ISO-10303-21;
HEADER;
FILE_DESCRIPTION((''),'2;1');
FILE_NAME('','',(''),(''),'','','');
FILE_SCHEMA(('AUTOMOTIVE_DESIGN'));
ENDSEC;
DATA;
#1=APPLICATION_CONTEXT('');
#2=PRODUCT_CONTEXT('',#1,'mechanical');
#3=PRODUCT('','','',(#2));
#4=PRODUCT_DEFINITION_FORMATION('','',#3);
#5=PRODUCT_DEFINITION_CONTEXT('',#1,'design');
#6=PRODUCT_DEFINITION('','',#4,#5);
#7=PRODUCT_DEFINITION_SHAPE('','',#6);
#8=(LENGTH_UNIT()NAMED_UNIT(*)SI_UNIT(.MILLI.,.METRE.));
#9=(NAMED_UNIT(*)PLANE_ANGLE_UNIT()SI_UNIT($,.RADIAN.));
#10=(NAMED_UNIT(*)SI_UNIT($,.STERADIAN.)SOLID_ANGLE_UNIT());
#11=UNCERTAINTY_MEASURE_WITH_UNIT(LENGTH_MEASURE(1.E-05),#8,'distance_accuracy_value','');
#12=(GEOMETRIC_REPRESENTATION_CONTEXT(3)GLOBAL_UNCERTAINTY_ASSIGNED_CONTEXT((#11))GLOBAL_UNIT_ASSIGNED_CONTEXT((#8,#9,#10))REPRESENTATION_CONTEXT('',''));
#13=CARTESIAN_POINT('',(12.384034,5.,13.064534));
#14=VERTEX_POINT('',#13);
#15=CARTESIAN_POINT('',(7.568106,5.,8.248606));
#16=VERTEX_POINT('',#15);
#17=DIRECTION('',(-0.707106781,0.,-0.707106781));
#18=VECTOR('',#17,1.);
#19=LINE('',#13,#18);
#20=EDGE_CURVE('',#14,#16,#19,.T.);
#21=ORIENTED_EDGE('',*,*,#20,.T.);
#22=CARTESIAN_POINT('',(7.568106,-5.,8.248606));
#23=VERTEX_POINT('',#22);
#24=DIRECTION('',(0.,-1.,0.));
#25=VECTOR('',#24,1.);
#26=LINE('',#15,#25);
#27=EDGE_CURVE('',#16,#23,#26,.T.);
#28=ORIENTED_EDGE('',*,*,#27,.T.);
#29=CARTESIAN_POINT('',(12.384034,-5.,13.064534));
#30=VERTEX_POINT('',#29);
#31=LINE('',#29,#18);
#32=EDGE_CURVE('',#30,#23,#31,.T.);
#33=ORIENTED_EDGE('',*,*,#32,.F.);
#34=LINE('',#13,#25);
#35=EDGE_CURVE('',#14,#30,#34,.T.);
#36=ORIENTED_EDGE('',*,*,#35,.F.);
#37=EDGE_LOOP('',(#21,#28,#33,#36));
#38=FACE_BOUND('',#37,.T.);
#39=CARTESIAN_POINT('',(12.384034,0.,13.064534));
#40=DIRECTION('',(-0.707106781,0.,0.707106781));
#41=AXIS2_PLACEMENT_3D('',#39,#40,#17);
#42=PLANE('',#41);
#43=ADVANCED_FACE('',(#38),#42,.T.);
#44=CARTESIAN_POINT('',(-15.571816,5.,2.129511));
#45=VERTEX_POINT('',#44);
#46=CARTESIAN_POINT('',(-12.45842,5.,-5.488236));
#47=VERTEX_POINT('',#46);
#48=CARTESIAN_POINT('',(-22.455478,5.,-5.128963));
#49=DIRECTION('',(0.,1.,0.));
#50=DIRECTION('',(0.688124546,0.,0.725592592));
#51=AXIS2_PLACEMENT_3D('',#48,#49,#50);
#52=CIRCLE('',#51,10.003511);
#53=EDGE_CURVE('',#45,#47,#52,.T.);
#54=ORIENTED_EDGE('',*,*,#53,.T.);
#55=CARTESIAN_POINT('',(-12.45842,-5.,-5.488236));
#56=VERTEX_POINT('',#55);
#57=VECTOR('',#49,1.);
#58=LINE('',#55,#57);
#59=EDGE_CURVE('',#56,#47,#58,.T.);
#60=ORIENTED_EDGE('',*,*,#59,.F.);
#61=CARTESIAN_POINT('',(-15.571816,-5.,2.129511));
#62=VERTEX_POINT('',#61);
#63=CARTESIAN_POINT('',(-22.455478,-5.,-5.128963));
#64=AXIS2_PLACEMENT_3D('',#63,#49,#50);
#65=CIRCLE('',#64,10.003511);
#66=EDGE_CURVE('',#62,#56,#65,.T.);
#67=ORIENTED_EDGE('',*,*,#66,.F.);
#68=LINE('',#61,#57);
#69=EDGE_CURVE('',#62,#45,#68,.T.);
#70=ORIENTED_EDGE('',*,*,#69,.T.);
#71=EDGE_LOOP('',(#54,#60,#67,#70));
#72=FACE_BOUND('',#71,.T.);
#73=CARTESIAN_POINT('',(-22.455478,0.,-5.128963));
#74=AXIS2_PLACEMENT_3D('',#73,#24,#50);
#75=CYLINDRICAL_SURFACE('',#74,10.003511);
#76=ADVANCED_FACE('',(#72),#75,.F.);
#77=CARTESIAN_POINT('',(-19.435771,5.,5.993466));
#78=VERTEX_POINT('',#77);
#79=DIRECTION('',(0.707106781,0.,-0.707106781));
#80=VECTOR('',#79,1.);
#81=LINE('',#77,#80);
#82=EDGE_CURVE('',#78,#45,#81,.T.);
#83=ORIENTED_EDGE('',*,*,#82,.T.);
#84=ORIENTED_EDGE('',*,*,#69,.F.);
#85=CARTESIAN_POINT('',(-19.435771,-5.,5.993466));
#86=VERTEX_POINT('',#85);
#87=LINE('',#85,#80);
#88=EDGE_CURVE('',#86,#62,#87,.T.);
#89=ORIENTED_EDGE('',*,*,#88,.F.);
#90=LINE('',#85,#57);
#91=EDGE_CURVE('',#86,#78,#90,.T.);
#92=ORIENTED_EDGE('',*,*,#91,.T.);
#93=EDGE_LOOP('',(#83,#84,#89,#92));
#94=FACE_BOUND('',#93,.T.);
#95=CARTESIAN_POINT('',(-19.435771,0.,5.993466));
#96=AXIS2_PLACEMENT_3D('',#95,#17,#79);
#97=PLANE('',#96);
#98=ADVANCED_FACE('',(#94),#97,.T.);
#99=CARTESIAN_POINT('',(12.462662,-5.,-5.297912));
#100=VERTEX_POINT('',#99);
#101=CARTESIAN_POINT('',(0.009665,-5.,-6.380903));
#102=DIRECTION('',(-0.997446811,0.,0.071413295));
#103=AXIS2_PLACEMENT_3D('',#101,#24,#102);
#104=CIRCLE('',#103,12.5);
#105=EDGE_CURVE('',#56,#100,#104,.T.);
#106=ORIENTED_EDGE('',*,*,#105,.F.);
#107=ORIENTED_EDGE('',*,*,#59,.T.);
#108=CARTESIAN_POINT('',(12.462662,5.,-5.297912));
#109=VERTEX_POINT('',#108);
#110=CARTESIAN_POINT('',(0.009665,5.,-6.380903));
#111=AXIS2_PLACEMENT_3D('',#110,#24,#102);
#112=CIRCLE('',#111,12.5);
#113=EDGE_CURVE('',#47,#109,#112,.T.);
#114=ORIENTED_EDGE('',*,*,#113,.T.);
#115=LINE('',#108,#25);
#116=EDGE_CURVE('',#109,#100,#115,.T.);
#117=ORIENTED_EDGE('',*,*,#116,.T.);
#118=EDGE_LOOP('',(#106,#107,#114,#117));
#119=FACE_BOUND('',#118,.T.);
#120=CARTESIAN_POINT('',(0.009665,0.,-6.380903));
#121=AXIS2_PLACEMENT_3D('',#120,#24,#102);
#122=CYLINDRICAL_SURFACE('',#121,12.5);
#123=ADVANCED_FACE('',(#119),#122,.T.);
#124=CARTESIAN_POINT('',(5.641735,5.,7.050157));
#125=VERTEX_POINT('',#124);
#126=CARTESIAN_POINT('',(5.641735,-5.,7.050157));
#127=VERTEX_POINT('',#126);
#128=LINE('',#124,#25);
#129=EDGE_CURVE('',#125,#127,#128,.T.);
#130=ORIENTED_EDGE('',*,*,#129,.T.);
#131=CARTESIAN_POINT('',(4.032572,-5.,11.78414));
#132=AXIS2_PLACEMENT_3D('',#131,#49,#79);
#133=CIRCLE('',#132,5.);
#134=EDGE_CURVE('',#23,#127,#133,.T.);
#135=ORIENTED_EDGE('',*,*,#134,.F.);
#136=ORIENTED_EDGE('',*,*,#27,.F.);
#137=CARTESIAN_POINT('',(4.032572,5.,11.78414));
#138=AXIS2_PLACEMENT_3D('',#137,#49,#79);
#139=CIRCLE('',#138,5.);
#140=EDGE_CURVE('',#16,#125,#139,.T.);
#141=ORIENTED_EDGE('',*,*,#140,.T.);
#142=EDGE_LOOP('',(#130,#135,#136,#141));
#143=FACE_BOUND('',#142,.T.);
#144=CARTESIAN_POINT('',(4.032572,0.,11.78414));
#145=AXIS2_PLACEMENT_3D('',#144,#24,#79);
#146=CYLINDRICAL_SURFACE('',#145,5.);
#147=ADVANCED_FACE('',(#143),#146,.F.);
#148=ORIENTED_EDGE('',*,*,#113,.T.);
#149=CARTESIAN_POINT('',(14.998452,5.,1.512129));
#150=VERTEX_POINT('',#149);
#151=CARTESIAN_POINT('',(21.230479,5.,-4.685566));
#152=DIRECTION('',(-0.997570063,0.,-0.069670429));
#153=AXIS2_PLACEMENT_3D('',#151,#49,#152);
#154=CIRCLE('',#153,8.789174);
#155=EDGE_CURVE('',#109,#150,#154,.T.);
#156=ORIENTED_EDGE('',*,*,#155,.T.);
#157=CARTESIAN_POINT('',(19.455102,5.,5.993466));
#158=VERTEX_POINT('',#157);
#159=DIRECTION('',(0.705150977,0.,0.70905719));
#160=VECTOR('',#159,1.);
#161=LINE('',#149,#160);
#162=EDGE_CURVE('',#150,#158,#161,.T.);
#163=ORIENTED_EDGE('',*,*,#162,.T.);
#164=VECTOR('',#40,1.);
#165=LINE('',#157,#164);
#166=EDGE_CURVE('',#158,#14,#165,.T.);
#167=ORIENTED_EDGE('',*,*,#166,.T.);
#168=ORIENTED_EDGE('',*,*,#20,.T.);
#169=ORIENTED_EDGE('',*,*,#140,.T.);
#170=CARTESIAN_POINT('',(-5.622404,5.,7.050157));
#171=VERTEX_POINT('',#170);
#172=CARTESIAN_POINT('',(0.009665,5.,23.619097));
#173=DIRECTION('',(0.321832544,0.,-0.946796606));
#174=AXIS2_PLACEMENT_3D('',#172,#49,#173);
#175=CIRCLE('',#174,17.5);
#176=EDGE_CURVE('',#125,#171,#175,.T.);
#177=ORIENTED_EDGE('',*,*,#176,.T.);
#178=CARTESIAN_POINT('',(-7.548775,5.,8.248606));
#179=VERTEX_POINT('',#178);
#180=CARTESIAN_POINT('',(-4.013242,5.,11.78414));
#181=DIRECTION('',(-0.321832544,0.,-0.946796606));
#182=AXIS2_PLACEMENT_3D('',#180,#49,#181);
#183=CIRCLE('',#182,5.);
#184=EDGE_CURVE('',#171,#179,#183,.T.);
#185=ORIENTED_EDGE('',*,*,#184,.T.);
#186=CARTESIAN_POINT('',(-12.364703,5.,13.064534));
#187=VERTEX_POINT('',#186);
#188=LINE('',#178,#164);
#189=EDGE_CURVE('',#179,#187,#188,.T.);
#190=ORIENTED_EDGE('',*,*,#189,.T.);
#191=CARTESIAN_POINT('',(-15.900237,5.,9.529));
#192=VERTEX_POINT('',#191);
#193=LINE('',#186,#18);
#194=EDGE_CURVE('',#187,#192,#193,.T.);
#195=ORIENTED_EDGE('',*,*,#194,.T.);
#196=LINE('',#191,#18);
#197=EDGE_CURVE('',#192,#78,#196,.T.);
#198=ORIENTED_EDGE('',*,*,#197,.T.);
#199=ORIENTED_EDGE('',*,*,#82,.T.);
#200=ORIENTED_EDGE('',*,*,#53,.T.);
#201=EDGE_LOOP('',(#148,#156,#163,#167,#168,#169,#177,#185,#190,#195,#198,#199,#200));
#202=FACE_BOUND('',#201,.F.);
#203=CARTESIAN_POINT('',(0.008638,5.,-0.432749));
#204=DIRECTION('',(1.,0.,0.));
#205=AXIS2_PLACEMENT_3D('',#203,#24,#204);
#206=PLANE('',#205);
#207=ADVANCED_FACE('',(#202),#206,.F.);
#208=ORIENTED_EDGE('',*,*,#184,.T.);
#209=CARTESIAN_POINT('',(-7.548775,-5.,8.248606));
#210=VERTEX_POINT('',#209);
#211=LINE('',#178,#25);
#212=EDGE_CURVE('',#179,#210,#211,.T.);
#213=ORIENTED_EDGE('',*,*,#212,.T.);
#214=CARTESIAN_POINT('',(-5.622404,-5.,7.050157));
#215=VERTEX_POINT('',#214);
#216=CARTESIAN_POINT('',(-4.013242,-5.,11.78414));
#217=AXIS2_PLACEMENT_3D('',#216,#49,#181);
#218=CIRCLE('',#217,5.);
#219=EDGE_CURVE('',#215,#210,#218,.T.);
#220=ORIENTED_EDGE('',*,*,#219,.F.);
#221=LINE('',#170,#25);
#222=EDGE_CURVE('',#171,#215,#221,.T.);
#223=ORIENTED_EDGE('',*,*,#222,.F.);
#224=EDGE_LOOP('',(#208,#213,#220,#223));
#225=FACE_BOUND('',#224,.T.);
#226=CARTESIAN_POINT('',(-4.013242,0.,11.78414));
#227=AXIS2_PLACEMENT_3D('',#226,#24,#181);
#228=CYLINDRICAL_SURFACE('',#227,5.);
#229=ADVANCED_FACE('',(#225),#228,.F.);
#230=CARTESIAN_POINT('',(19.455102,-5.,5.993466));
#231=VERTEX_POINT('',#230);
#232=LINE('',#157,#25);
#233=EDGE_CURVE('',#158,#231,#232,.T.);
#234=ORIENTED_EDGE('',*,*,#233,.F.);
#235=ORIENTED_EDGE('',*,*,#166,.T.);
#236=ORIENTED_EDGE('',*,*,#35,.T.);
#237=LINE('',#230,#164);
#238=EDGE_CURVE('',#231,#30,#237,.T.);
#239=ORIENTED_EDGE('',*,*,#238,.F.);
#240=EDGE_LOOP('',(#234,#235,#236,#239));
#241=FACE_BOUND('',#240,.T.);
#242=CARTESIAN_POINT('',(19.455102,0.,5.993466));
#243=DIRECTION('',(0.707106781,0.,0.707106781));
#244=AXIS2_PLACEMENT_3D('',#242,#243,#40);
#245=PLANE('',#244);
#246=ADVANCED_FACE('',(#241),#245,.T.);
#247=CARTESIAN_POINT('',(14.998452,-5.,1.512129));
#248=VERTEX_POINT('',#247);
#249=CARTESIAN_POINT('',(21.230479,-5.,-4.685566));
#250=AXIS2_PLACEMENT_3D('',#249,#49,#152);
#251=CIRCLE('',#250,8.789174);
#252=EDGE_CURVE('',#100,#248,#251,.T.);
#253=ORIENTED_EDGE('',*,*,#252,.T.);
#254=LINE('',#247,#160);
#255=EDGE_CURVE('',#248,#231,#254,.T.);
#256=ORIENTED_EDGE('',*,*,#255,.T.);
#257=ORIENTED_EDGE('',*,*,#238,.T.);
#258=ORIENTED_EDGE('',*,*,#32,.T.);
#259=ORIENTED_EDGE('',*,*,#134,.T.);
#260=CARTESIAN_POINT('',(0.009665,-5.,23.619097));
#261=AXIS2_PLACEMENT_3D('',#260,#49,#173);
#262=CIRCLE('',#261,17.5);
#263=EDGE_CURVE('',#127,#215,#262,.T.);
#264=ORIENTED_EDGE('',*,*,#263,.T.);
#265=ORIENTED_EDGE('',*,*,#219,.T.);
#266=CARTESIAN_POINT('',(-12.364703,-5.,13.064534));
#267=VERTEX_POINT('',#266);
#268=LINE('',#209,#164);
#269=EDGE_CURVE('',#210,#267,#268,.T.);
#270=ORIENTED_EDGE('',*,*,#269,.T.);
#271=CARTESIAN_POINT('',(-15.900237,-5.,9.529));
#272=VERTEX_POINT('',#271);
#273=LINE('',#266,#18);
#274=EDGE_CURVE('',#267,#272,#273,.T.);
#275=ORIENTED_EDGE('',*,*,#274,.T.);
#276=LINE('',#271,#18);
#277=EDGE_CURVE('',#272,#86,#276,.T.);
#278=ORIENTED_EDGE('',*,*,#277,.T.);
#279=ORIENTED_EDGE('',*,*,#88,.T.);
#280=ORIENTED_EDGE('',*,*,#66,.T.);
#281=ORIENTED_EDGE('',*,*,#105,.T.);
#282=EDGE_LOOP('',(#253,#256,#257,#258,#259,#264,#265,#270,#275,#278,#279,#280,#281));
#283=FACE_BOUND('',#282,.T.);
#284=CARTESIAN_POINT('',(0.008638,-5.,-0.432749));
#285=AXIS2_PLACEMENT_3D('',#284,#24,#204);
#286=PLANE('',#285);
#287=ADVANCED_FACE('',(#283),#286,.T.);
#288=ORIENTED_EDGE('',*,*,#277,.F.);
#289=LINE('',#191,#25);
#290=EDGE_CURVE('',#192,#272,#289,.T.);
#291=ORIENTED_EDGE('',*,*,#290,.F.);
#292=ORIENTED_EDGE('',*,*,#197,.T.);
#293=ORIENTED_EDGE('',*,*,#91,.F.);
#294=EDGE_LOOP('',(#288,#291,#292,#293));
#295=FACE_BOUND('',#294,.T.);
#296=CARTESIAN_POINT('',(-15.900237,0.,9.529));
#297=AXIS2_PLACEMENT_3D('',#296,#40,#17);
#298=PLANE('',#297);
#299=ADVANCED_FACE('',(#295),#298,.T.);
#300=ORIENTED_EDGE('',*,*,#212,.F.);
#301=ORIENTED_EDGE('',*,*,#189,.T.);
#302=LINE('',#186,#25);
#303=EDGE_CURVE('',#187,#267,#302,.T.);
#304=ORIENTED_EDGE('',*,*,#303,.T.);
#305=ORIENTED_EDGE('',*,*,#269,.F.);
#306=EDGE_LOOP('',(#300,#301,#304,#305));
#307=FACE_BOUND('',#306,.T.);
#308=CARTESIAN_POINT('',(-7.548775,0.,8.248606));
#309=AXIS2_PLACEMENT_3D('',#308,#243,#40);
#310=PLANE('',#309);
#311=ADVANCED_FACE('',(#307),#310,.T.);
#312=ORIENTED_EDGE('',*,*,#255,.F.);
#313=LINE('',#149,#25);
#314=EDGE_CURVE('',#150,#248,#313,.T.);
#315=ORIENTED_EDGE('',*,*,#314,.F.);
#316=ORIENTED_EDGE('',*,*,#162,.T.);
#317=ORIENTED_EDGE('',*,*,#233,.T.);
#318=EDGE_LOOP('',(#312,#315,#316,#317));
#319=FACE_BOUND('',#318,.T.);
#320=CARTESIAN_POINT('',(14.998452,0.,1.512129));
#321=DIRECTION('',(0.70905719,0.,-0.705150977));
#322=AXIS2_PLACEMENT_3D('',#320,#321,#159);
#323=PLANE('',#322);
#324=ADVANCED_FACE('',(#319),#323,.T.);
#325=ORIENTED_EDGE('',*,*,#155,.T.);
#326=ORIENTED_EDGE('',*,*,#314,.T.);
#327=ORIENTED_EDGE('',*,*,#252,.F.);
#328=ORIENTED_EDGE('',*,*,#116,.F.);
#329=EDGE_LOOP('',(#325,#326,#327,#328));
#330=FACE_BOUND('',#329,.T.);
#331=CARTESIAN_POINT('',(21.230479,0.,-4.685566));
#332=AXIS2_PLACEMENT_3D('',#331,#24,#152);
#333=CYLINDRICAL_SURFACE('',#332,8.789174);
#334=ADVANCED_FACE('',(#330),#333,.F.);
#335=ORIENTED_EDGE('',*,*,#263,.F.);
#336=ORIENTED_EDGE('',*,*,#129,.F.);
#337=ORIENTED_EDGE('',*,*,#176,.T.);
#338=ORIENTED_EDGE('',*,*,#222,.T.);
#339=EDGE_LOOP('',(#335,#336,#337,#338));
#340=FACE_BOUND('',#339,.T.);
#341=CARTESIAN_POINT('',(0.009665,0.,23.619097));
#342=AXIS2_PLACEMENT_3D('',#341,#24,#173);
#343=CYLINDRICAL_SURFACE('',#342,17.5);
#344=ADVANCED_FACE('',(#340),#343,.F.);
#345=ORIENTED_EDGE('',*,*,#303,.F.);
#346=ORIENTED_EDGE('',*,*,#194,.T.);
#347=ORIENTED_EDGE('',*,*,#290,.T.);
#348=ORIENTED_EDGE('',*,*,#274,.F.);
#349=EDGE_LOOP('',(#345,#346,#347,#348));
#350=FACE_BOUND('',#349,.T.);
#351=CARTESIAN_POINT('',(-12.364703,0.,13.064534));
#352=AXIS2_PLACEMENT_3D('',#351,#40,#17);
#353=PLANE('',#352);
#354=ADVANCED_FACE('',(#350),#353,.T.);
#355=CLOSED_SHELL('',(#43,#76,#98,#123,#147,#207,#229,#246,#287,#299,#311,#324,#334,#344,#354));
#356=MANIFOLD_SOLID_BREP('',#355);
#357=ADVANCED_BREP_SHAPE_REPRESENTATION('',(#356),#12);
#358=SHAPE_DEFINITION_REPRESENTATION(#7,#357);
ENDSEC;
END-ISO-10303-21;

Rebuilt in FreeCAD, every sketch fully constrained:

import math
import FreeCAD as App
import Part
import Sketcher
from FreeCAD import Vector

doc = App.newDocument("Part")
body = doc.addObject("PartDesign::Body", "Body")

# Sketch on XZ plane
sketch1 = body.newObject("Sketcher::SketchObject", "Sketch")
sketch1.AttachmentSupport = (doc.getObject("XZ_Plane"), [""])
sketch1.MapMode = "FlatFace"
sketch1.addGeometry([
    Part.ArcOfCircle(Part.Circle(Vector(0.009665, -6.380903, 0), Vector(0, 0, 1), 12.5), math.radians(175.904834), math.radians(364.970296)),  # 0
    Part.ArcOfCircle(Part.Circle(Vector(21.230479, -4.685566, 0), Vector(0, 0, 1), 8.789174), math.radians(135.158257), math.radians(183.995058)),  # 1
    Part.LineSegment(Vector(14.998452, 1.512129, 0), Vector(19.455102, 5.993466, 0)),  # 2
    Part.LineSegment(Vector(19.455102, 5.993466, 0), Vector(12.384034, 13.064534, 0)),  # 3
    Part.LineSegment(Vector(12.384034, 13.064534, 0), Vector(7.568106, 8.248606, 0)),  # 4
    Part.ArcOfCircle(Part.Circle(Vector(4.032572, 11.78414, 0), Vector(0, 0, 1), 5), math.radians(-71.226214), math.radians(-45)),  # 5
    Part.ArcOfCircle(Part.Circle(Vector(0.009665, 23.619097, 0), Vector(0, 0, 1), 17.5), math.radians(-108.773786), math.radians(-71.226214)),  # 6
    Part.ArcOfCircle(Part.Circle(Vector(-4.013242, 11.78414, 0), Vector(0, 0, 1), 5), math.radians(-135), math.radians(-108.773786)),  # 7
    Part.LineSegment(Vector(-7.548775, 8.248606, 0), Vector(-12.364703, 13.064534, 0)),  # 8
    Part.LineSegment(Vector(-12.364703, 13.064534, 0), Vector(-15.900237, 9.529, 0)),  # 9
    Part.LineSegment(Vector(-15.900237, 9.529, 0), Vector(-19.435771, 5.993466, 0)),  # 10
    Part.LineSegment(Vector(-19.435771, 5.993466, 0), Vector(-15.571816, 2.129511, 0)),  # 11
    Part.ArcOfCircle(Part.Circle(Vector(-22.455478, -5.128963, 0), Vector(0, 0, 1), 10.003511), math.radians(-2.058205), math.radians(46.518167)),  # 12
], False)
sketch1.addConstraint([
    Sketcher.Constraint("Coincident", 0, 2, 1, 2),
    Sketcher.Constraint("Coincident", 1, 1, 2, 1),
    Sketcher.Constraint("Coincident", 2, 2, 3, 1),
    Sketcher.Constraint("Coincident", 3, 2, 4, 1),
    Sketcher.Constraint("Coincident", 4, 2, 5, 2),
    Sketcher.Constraint("Coincident", 5, 1, 6, 2),
    Sketcher.Constraint("Coincident", 6, 1, 7, 2),
    Sketcher.Constraint("Coincident", 7, 1, 8, 1),
    Sketcher.Constraint("Coincident", 8, 2, 9, 1),
    Sketcher.Constraint("Coincident", 9, 2, 10, 1),
    Sketcher.Constraint("Coincident", 10, 2, 11, 1),
    Sketcher.Constraint("Coincident", 11, 2, 12, 2),
    Sketcher.Constraint("Coincident", 12, 1, 0, 1),
    Sketcher.Constraint("Radius", 5, 5.0),
    Sketcher.Constraint("Radius", 7, 5.0),
    Sketcher.Constraint("Radius", 0, 12.5),
    Sketcher.Constraint("Radius", 6, 17.5),
    Sketcher.Constraint("Distance", 3, 10.0),
    Sketcher.Constraint("Distance", 9, 5.0),
    Sketcher.Constraint("Distance", 10, 5.0),
    Sketcher.Constraint("DistanceY", 0, 3, 6, 3, 30.0),
    Sketcher.Constraint("Radius", 12, 10.003511),
    Sketcher.Constraint("DistanceY", -1, 1, 9, 2, 9.529),
    Sketcher.Constraint("Radius", 1, 8.789174),
    Sketcher.Constraint("DistanceX", -1, 1, 2, 2, 19.455102),
    Sketcher.Constraint("DistanceX", 5, 1, 3, 2, 6.742299),
    Sketcher.Constraint("DistanceX", 8, 2, 6, 1, 6.742299),
    Sketcher.Constraint("Distance", 4, 6.810751),
    Sketcher.Constraint("Distance", 8, 6.810751),
    Sketcher.Constraint("Distance", 11, 5.464458),
    Sketcher.Constraint("DistanceX", -1, 1, 1, 3, 21.230479),
    Sketcher.Constraint("DistanceY", -1, 1, 5, 3, 11.78414),
    Sketcher.Constraint("DistanceX", 7, 3, -1, 1, 4.013242),
    Sketcher.Constraint("DistanceY", -1, 1, 7, 3, 11.78414),
    Sketcher.Constraint("DistanceY", 0, 2, -1, 1, 5.297912),
    Sketcher.Constraint("DistanceY", -1, 1, 1, 1, 1.512129),
    Sketcher.Constraint("DistanceX", 10, 2, -1, 1, 19.435771),
    Sketcher.Constraint("DistanceY", -1, 1, 11, 2, 2.129511),
    Sketcher.Constraint("DistanceX", 12, 1, -1, 1, 12.45842),
    Sketcher.Constraint("DistanceY", 0, 3, 12, 3, 1.25194),
    Sketcher.Constraint("DistanceX", 12, 3, 5, 3, 26.48805),
    Sketcher.Constraint("DistanceX", 5, 3, 0, 2, 8.43009),
    Sketcher.Constraint("DistanceY", 0, 3, 2, 2, 12.374369),
    Sketcher.Constraint("DistanceX", 5, 3, 3, 2, 8.351462),
    Sketcher.Constraint("DistanceX", 6, 1, 5, 1, 11.264139),
])
pad1 = body.newObject("PartDesign::Pad", "Pad")
pad1.Profile = sketch1
pad1.Length = 10
pad1.Midplane = True

doc.recompute()
